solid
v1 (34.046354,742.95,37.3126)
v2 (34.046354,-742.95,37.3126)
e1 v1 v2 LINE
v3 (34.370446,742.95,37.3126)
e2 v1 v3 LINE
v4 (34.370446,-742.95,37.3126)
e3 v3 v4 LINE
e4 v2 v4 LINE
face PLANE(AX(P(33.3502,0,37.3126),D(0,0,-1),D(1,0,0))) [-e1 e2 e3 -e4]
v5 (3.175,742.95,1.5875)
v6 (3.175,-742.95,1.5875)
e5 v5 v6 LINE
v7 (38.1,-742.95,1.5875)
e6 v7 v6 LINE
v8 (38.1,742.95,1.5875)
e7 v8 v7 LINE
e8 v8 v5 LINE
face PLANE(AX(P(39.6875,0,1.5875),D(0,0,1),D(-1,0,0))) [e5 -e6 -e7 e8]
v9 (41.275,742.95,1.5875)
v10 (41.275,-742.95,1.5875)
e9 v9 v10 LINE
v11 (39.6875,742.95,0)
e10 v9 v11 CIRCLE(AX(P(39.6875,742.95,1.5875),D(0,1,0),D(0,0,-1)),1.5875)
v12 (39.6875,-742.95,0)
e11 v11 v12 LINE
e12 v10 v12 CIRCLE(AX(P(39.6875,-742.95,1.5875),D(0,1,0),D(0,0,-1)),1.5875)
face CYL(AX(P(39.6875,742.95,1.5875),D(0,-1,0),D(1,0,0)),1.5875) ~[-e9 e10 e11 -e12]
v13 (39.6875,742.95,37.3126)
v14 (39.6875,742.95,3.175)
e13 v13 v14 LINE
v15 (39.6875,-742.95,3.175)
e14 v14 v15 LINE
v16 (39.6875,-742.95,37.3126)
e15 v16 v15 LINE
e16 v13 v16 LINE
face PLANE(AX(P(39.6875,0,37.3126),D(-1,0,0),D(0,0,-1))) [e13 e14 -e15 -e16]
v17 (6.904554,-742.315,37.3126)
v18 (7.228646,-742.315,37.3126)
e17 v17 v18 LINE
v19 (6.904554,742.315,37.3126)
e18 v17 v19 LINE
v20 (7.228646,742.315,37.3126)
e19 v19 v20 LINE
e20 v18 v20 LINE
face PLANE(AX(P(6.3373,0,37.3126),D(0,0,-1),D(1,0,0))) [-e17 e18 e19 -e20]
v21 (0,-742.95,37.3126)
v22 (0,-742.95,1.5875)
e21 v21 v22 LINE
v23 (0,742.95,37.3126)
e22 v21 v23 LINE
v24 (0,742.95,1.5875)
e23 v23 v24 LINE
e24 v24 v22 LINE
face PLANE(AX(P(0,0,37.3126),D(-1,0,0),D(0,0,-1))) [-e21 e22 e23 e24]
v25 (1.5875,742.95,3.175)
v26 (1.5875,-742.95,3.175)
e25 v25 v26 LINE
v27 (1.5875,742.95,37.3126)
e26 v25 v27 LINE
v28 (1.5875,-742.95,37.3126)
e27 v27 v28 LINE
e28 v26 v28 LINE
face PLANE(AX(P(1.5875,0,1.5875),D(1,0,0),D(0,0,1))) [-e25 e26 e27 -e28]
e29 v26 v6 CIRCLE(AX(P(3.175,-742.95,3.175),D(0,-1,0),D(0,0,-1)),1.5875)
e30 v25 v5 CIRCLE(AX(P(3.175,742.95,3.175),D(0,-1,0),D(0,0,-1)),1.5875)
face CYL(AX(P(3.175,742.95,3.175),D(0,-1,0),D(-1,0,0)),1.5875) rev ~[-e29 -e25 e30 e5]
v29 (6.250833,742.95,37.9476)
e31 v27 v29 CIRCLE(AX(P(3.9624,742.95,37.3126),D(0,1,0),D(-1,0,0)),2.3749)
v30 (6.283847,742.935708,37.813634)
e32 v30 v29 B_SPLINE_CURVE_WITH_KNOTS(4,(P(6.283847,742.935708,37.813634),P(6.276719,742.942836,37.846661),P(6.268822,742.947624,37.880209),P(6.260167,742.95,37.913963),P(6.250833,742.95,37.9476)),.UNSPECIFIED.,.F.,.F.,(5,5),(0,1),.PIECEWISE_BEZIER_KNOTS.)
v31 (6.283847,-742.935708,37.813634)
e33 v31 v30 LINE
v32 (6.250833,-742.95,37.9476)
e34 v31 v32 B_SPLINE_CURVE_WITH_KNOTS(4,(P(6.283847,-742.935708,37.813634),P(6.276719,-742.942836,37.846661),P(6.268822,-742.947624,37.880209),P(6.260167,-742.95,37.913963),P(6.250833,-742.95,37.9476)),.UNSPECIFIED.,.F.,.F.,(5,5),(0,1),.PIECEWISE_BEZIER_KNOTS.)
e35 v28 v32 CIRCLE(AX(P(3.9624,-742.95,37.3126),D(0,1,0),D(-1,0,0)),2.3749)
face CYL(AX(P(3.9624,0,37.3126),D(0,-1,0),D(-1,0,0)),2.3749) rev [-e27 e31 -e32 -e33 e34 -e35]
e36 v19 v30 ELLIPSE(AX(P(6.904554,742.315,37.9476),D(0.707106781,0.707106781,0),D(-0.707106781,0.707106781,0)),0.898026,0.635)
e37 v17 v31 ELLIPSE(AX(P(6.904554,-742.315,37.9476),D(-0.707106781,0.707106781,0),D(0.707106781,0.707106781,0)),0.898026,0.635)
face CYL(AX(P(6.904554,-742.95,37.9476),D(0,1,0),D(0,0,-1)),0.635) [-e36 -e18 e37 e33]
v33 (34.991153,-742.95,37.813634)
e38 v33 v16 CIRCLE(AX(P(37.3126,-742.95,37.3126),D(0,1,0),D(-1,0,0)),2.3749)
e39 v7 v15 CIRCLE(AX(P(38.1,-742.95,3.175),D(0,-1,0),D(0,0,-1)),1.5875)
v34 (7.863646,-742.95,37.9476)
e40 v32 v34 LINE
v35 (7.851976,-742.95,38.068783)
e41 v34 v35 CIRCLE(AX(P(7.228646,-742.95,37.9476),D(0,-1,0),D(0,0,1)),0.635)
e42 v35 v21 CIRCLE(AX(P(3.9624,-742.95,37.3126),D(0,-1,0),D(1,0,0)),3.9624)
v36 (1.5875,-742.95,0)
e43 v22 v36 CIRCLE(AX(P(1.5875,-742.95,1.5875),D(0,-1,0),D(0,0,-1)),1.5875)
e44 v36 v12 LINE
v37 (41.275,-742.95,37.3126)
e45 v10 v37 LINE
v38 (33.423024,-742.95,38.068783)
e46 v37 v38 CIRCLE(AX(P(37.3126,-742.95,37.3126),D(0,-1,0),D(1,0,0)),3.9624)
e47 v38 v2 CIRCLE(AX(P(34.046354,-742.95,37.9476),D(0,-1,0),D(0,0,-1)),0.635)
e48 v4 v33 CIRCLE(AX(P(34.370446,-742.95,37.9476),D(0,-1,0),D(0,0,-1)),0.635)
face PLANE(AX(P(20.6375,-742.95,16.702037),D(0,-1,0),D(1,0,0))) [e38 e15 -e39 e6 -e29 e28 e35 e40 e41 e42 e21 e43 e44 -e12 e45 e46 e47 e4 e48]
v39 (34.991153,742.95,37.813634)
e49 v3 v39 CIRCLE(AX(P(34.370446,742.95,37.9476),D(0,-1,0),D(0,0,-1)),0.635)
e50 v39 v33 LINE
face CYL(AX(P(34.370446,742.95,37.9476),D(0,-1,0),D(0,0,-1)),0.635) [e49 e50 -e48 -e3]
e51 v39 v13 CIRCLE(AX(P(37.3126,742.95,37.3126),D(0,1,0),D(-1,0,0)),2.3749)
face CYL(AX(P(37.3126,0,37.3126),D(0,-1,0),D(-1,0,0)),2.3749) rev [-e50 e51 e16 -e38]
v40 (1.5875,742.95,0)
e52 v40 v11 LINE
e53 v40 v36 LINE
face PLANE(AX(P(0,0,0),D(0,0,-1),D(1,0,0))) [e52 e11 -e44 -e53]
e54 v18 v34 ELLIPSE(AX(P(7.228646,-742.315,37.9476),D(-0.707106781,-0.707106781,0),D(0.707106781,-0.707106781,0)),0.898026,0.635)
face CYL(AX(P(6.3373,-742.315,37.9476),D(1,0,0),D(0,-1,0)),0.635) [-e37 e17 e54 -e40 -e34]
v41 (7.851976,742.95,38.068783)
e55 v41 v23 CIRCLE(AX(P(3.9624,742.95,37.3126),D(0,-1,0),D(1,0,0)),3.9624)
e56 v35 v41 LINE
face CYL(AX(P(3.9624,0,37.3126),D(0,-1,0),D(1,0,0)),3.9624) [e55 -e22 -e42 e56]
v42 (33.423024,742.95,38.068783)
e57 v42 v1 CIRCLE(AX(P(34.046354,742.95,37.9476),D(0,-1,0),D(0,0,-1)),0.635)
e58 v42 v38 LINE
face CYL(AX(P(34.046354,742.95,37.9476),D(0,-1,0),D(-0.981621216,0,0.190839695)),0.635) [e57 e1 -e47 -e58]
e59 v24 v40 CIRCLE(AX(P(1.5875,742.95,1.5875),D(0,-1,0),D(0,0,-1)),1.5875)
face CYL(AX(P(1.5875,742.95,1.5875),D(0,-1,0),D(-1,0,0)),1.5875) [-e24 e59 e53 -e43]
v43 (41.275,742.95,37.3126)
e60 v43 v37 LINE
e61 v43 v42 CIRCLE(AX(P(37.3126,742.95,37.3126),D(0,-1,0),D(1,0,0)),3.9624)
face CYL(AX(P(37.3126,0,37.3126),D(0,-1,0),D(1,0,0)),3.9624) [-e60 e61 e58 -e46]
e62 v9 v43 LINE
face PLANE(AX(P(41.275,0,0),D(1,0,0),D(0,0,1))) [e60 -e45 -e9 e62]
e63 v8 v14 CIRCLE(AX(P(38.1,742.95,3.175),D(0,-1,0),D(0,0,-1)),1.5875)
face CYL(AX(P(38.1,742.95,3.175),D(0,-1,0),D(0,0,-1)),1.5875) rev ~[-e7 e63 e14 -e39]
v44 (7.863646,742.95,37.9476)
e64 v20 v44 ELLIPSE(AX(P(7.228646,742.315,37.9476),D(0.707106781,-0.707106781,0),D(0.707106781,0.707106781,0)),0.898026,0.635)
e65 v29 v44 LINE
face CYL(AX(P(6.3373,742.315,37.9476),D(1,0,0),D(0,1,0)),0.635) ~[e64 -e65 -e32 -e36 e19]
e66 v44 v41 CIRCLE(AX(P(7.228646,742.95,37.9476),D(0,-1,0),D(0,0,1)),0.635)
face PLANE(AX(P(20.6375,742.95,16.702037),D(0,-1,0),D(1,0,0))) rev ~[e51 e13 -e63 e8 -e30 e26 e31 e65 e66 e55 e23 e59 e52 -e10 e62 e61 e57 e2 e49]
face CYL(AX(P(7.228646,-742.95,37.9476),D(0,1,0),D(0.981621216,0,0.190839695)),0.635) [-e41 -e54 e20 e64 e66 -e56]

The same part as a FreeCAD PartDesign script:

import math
import FreeCAD as App
import Part
import Sketcher
Q = App.Units.Quantity


def edges_at(feature, points):
    """Names of the edges that pass closest to the given points."""
    edges = feature.Shape.Edges
    near = lambda p: min(range(len(edges)), key=lambda i: edges[i].distToShape(Part.Vertex(*p))[0])
    return sorted({f"Edge{near(p) + 1}" for p in points})

doc = App.newDocument("Part")
params = doc.addObject("Spreadsheet::Sheet", "Params")
for row, (alias, value) in enumerate([
    ("sketch1_width", "1.5 in"),
    ("sketch1_radius", "0.156 in"),
    ("sketch1_height", "1.469 in"),
    ("pad1_length", "58.5 in"),
    ("fillet_radius", "0.0625 in"),
    ("fillet2_radius", "0.025 in"),
], start=1):
    params.set(f"A{row}", alias)
    params.set(f"B{row}", "=" + value)
    params.setAlias(f"B{row}", alias)

body = doc.addObject("PartDesign::Body", "Body")

sketch1 = doc.addObject("Sketcher::SketchObject", "Sketch")
body.addObject(sketch1)
sketch1.AttachmentSupport = (doc.XZ_Plane, [""])
sketch1.MapMode = "FlatFace"
sketch1.addGeometry([
    Part.LineSegment(App.Vector(0, 37.3, 0), App.Vector(0, 0, 0)),
    Part.LineSegment(App.Vector(0, 0, 0), App.Vector(41.3, 0, 0)),
    Part.LineSegment(App.Vector(41.3, 0, 0), App.Vector(41.3, 37.3, 0)),
    Part.ArcOfCircle(Part.Circle(App.Vector(37.3, 37.3, 0), App.Vector(0, 0, 1), 4), math.radians(0), math.radians(180)),
    Part.LineSegment(App.Vector(33.4, 37.3, 0), App.Vector(34.9, 37.3, 0)),
    Part.ArcOfCircle(Part.Circle(App.Vector(37.3, 37.3, 0), App.Vector(0, 0, 1), 2.4), math.radians(0), math.radians(180)),
    Part.LineSegment(App.Vector(39.7, 37.3, 0), App.Vector(39.7, 1.6, 0)),
    Part.LineSegment(App.Vector(39.7, 1.6, 0), App.Vector(1.6, 1.6, 0)),
    Part.LineSegment(App.Vector(1.6, 1.6, 0), App.Vector(1.6, 37.3, 0)),
    Part.ArcOfCircle(Part.Circle(App.Vector(4, 37.3, 0), App.Vector(0, 0, 1), 2.4), math.radians(0), math.radians(180)),
    Part.LineSegment(App.Vector(6.3, 37.3, 0), App.Vector(7.9, 37.3, 0)),
    Part.ArcOfCircle(Part.Circle(App.Vector(4, 37.3, 0), App.Vector(0, 0, 1), 4), math.radians(0), math.radians(180)),
], False)
sketch1.addConstraint([
    Sketcher.Constraint("Coincident", 0, 2, 1, 1),
    Sketcher.Constraint("Coincident", 1, 2, 2, 1),
    Sketcher.Constraint("Tangent", 2, 2, 3, 1),
    Sketcher.Constraint("Coincident", 3, 2, 4, 1),
    Sketcher.Constraint("Coincident", 4, 2, 5, 2),
    Sketcher.Constraint("Tangent", 5, 1, 6, 1),
    Sketcher.Constraint("Coincident", 6, 2, 7, 1),
    Sketcher.Constraint("Coincident", 7, 2, 8, 1),
    Sketcher.Constraint("Tangent", 8, 2, 9, 2),
    Sketcher.Constraint("Coincident", 9, 1, 10, 1),
    Sketcher.Constraint("Coincident", 10, 2, 11, 1),
    Sketcher.Constraint("Tangent", 11, 2, 0, 1),
    Sketcher.Constraint("Vertical", 0),
    Sketcher.Constraint("Horizontal", 1),
    Sketcher.Constraint("Vertical", 2),
    Sketcher.Constraint("Horizontal", 4),
    Sketcher.Constraint("Vertical", 6),
    Sketcher.Constraint("Horizontal", 7),
    Sketcher.Constraint("Vertical", 8),
    Sketcher.Constraint("Horizontal", 10),
    Sketcher.Constraint("Coincident", 0, 2, -1, 1),
    Sketcher.Constraint("Coincident", 5, 3, 3, 3),
    Sketcher.Constraint("Coincident", 11, 3, 9, 3),
    Sketcher.Constraint("Equal", 5, 9),
    Sketcher.Constraint("Equal", 3, 11),
    Sketcher.Constraint("Horizontal", 5, 3, 9, 3),
    Sketcher.Constraint("Horizontal", 2, 2, 3, 2),
    Sketcher.Constraint("Horizontal", 8, 2, 9, 1),
    Sketcher.Constraint("DistanceX", 7, 2, 7, 1, Q("1.5 in")),
    Sketcher.Constraint("Radius", 3, Q("0.156 in")),
    Sketcher.Constraint("Radius", 5, Q("0.0935 in")),
    Sketcher.Constraint("DistanceY", 0, 2, 0, 1, Q("1.469 in")),
    Sketcher.Constraint("DistanceY", 6, 2, 6, 1, Q("1.4065 in")),
])
sketch1.setExpression("Constraints[28]", "Params.sketch1_width")
sketch1.setExpression("Constraints[29]", "Params.sketch1_radius")
sketch1.setExpression("Constraints[31]", "Params.sketch1_height")
pad1 = doc.addObject("PartDesign::Pad", "Pad")
body.addObject(pad1)
pad1.Profile = sketch1
pad1.setExpression("Length", "Params.pad1_length")
pad1.Midplane = True
doc.recompute()

fillet = doc.addObject("PartDesign::Fillet", "Fillet")
body.addObject(fillet)
fillet.Base = (pad1, edges_at(pad1, [
    (1.587, 0, 1.587),
    (39.688, 0, 1.587),
    (0, 0, 0),
    (41.275, 0, 0),
]))
fillet.setExpression("Radius", "Params.fillet_radius")
doc.recompute()

fillet2 = doc.addObject("PartDesign::Fillet", "Fillet001")
body.addObject(fillet2)
fillet2.Base = (fillet, edges_at(fillet, [
    (7.131, 742.95, 37.313),
    (7.925, 0, 37.313),
    (7.131, -742.95, 37.313),
    (6.337, 0, 37.313),
    (33.35, 0, 37.313),
    (34.938, 0, 37.313),
]))
fillet2.setExpression("Radius", "Params.fillet2_radius")

doc.recompute()
